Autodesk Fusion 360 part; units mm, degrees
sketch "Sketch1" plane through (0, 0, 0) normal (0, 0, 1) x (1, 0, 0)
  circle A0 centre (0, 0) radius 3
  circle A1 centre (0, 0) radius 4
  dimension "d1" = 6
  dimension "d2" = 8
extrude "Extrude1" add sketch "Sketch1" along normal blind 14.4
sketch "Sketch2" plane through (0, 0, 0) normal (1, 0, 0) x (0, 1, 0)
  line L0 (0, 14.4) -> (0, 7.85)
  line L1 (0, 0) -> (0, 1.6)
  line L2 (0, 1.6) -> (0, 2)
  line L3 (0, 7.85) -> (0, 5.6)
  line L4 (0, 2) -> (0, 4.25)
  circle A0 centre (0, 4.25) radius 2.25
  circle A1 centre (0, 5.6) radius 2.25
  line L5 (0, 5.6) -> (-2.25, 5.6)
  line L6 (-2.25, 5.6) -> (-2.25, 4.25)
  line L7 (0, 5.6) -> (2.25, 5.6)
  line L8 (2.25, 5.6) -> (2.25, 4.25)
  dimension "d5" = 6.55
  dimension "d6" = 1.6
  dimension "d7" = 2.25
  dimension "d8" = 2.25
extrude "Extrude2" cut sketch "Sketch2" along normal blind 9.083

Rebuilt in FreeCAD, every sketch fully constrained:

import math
import FreeCAD as App
import Part
import Sketcher

V = App.Vector

doc = App.newDocument("Part")
body = doc.addObject("PartDesign::Body", "Body")

sketch1 = body.newObject("Sketcher::SketchObject", "Sketch")
sketch1.AttachmentSupport = (doc.getObject("XY_Plane"), [""])
sketch1.MapMode = "FlatFace"
sketch1.addGeometry(Part.Circle(V(0, 0, 0), V(0, 0, 1), 4), False)
sketch1.addGeometry(Part.Circle(V(0, 0, 0), V(0, 0, 1), 3), False)
sketch1.addConstraint(Sketcher.Constraint("Coincident", 0, 3, -1, 1))
sketch1.addConstraint(Sketcher.Constraint("Coincident", 1, 3, -1, 1))
sketch1.addConstraint(Sketcher.Constraint("Diameter", 0, 8.0))
sketch1.addConstraint(Sketcher.Constraint("Diameter", 1, 6.0))
pad1 = body.newObject("PartDesign::Pad", "Pad")
pad1.Profile = sketch1
pad1.Length = 14.4

sketch2 = body.newObject("Sketcher::SketchObject", "Sketch001")
sketch2.AttachmentSupport = (doc.getObject("YZ_Plane"), [""])
sketch2.MapMode = "FlatFace"
sketch2.addGeometry(Part.ArcOfCircle(Part.Circle(V(0, 5.6, 0), V(0, 0, 1), 2.25), math.radians(0), math.radians(180)), False)
sketch2.addGeometry(Part.LineSegment(V(-2.25, 5.6, 0), V(-2.25, 4.25, 0)), False)
sketch2.addGeometry(Part.ArcOfCircle(Part.Circle(V(0, 4.25, 0), V(0, 0, 1), 2.25), math.radians(180), math.radians(360)), False)
sketch2.addGeometry(Part.LineSegment(V(2.25, 4.25, 0), V(2.25, 5.6, 0)), False)
sketch2.addConstraint(Sketcher.Constraint("Tangent", 0, 2, 1, 1))
sketch2.addConstraint(Sketcher.Constraint("Tangent", 1, 2, 2, 1))
sketch2.addConstraint(Sketcher.Constraint("Tangent", 2, 2, 3, 1))
sketch2.addConstraint(Sketcher.Constraint("Tangent", 3, 2, 0, 1))
sketch2.addConstraint(Sketcher.Constraint("Vertical", 1))
sketch2.addConstraint(Sketcher.Constraint("Vertical", 3))
sketch2.addConstraint(Sketcher.Constraint("PointOnObject", 0, 3, -2))
sketch2.addConstraint(Sketcher.Constraint("Radius", 0, 2.25))
sketch2.addConstraint(Sketcher.Constraint("DistanceY", 1, 2, 1, 1, 1.35))
sketch2.addConstraint(Sketcher.Constraint("DistanceY", -1, 1, 0, 3, 5.6))
pocket1 = body.newObject("PartDesign::Pocket", "Pocket")
pocket1.Profile = sketch2
pocket1.Length = 9.083
pocket1.Reversed = True

doc.recompute()
